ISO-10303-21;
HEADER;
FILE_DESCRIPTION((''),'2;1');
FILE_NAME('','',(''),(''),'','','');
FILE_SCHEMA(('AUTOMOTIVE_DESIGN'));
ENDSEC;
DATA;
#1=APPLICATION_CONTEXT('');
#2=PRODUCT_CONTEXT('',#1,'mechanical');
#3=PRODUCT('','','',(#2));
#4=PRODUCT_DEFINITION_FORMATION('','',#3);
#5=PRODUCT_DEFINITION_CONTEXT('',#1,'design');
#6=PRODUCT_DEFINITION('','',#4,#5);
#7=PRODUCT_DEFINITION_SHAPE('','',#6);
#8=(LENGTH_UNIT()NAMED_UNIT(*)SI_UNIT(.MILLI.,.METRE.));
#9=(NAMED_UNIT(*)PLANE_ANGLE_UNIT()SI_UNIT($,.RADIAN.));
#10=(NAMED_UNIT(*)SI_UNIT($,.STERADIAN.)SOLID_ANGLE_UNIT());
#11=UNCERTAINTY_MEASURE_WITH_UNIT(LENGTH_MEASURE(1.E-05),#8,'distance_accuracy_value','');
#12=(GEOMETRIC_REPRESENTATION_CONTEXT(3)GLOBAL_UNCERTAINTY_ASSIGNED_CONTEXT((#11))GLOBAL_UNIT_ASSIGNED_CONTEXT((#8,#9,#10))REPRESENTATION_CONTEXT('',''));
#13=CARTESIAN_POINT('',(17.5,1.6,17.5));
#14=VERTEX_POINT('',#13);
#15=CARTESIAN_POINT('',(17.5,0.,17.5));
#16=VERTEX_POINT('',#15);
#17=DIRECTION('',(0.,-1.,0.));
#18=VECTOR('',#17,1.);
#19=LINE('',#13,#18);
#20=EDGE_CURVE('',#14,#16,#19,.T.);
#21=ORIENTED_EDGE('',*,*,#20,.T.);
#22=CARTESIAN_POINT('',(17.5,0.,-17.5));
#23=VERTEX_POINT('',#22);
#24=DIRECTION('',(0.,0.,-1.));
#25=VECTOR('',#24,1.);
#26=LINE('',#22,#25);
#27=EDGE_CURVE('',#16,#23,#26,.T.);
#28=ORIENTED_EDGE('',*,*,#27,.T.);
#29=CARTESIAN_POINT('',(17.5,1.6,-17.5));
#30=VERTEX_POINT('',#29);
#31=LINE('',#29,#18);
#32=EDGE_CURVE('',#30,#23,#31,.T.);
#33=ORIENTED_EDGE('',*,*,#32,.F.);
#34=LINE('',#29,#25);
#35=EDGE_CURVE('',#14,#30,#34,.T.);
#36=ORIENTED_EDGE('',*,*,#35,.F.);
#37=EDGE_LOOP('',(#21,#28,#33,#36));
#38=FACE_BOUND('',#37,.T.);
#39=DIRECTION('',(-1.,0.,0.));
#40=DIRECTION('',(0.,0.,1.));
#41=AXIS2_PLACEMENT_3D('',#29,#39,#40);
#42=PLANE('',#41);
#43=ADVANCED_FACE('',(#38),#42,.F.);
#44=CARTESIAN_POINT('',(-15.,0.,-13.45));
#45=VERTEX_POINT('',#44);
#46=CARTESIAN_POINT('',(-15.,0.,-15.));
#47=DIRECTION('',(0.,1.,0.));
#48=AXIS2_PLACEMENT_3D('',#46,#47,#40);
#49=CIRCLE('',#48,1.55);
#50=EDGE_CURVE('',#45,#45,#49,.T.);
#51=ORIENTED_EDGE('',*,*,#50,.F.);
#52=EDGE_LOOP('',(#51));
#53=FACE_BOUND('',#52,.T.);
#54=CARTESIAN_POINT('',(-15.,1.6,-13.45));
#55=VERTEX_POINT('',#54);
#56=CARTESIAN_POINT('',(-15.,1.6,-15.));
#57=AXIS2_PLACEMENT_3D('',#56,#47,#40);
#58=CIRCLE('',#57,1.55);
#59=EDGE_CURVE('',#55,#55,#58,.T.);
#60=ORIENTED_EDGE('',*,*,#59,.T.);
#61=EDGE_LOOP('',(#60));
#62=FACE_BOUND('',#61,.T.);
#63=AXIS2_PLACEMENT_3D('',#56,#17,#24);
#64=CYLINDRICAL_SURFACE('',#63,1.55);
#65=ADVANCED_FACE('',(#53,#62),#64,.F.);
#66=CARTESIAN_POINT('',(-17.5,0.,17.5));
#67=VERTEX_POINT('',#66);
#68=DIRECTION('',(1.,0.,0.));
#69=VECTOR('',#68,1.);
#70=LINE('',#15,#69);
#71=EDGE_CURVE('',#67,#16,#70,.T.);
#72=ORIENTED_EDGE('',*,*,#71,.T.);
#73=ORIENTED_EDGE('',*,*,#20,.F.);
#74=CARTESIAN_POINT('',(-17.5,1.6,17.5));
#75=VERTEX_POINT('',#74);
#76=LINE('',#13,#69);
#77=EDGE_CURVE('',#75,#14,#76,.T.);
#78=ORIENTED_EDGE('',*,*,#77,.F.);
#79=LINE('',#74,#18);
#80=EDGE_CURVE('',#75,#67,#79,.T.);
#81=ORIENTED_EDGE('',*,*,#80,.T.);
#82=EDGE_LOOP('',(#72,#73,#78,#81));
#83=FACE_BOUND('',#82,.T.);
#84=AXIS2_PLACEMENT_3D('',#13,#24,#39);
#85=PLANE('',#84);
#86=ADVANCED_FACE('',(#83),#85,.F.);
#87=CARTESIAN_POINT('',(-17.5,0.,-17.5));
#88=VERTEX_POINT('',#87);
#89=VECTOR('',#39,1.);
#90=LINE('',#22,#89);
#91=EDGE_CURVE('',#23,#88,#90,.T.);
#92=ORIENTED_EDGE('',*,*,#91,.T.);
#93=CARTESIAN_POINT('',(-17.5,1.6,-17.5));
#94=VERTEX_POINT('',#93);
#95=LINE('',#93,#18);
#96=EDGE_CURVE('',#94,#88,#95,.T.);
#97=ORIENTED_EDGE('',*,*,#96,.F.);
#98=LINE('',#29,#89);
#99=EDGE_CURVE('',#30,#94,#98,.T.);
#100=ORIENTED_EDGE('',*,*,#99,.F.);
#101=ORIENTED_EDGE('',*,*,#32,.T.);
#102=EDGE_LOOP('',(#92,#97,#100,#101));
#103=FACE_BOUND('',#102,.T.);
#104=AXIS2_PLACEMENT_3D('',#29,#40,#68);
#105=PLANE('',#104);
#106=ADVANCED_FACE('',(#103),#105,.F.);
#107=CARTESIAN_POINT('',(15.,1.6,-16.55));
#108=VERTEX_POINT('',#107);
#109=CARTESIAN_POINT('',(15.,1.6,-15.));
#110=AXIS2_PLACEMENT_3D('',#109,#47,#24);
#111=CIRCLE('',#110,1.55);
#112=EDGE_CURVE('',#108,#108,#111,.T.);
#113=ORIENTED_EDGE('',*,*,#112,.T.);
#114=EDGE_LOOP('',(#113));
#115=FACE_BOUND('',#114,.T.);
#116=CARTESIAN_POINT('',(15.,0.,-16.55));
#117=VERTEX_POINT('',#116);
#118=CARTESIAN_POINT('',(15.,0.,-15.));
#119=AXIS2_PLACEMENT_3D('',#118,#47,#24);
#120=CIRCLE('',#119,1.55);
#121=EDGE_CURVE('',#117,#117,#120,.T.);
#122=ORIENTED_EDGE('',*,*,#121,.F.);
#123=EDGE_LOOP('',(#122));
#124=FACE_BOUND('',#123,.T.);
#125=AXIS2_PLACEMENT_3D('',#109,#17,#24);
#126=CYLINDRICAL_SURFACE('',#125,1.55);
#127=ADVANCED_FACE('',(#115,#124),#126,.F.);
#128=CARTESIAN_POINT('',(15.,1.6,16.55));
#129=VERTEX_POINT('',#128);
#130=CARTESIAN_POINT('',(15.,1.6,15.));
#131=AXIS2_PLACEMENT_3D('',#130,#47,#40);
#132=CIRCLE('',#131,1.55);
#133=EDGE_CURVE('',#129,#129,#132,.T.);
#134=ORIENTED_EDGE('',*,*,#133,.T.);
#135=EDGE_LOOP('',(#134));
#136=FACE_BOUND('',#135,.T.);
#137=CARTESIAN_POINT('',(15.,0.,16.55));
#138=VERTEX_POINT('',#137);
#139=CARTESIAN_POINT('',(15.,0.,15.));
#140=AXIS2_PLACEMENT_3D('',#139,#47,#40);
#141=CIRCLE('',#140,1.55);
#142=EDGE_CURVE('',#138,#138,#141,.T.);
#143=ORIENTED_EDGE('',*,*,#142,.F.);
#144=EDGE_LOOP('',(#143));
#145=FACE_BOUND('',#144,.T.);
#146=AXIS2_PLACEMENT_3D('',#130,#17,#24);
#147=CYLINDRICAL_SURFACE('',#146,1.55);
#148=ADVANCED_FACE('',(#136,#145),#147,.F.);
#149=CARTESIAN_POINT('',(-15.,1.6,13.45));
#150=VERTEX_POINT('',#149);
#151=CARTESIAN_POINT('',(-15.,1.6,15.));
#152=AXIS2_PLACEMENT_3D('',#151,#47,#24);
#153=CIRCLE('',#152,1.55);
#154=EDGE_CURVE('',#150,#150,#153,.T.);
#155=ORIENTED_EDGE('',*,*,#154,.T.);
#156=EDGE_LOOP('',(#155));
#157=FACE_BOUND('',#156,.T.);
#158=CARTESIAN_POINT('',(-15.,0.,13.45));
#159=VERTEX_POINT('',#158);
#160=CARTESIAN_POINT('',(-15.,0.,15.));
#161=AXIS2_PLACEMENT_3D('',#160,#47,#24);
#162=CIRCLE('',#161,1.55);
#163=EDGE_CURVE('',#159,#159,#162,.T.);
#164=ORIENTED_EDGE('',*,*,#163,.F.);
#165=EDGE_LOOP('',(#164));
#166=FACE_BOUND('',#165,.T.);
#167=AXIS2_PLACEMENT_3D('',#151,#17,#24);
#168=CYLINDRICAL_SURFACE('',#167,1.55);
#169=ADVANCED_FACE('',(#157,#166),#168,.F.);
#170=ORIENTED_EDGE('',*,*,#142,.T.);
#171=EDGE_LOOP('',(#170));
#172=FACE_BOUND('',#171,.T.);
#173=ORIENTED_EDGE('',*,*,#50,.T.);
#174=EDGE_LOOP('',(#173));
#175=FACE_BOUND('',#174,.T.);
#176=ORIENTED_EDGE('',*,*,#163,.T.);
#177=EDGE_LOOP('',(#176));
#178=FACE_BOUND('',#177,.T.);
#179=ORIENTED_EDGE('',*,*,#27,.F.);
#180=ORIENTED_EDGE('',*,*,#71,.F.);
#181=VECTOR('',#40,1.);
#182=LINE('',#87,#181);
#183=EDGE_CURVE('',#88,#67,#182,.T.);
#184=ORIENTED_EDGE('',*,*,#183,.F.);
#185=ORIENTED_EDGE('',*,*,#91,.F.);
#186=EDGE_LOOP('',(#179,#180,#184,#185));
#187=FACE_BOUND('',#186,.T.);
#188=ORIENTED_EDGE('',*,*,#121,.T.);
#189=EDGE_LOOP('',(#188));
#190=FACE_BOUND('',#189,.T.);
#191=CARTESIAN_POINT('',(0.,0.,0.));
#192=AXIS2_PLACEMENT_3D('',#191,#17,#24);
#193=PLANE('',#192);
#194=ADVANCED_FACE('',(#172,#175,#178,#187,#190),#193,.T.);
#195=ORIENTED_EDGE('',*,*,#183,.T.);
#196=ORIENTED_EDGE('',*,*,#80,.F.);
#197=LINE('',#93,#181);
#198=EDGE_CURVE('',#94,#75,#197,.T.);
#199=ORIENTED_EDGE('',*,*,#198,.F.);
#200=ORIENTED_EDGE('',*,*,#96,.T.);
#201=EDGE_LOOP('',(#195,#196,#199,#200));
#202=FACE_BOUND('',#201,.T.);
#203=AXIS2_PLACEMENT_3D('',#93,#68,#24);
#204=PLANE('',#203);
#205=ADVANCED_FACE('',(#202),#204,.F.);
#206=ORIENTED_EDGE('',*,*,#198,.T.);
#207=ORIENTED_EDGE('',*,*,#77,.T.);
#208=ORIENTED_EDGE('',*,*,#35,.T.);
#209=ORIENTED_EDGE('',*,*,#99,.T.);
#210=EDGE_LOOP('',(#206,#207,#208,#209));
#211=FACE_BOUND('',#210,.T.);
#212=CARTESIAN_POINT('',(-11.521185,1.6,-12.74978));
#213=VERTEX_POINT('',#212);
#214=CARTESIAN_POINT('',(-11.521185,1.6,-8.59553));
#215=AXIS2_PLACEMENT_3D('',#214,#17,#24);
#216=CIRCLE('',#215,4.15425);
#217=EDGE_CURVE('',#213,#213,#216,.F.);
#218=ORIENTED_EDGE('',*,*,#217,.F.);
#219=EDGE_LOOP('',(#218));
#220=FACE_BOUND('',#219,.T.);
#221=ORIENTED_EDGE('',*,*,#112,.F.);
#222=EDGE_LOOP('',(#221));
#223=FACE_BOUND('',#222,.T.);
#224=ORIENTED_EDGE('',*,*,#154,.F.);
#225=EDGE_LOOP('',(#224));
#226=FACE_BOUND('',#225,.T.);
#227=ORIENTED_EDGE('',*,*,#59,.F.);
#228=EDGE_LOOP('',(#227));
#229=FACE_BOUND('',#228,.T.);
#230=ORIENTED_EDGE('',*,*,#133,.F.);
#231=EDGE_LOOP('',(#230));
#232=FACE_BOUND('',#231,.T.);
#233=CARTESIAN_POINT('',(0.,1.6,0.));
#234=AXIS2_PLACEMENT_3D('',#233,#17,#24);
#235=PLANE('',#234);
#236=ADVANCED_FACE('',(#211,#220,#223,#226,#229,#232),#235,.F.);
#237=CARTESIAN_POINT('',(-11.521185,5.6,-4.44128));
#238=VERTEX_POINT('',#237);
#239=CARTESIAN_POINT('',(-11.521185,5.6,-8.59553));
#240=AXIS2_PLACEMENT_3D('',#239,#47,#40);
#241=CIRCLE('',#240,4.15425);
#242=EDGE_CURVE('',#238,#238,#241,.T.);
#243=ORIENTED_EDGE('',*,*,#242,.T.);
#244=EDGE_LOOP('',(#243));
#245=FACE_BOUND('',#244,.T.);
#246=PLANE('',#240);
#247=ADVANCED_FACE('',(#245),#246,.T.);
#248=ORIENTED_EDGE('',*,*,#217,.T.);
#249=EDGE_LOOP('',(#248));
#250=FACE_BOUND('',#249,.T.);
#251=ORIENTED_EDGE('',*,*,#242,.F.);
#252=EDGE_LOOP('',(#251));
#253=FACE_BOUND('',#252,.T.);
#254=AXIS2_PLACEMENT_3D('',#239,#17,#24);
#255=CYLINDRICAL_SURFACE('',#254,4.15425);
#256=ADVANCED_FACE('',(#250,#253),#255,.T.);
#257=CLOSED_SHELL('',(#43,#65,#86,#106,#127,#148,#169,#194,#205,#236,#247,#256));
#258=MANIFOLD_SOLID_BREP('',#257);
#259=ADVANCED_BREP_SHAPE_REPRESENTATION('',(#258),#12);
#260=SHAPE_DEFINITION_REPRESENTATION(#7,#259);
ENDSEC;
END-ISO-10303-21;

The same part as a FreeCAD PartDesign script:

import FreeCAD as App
import Part
import Sketcher
Q = App.Units.Quantity

doc = App.newDocument("Part")
body = doc.addObject("PartDesign::Body", "Body")

# Sketch on XZ plane
sketch1 = body.newObject("Sketcher::SketchObject", "Sketch")
sketch1.AttachmentSupport = (doc.getObject("XZ_Plane"), [""])
sketch1.MapMode = "FlatFace"
sketch1.addGeometry(Part.LineSegment(App.Vector(-17.5, -17.5, 0), App.Vector(-17.5, 17.5, 0)), False)
sketch1.addGeometry(Part.LineSegment(App.Vector(-17.5, 17.5, 0), App.Vector(17.5, 17.5, 0)), False)
sketch1.addGeometry(Part.LineSegment(App.Vector(17.5, 17.5, 0), App.Vector(17.5, -17.5, 0)), False)
sketch1.addGeometry(Part.LineSegment(App.Vector(17.5, -17.5, 0), App.Vector(-17.5, -17.5, 0)), False)
sketch1.addGeometry(Part.Circle(App.Vector(-15, 15, 0), App.Vector(0, 0, 1), 1.55), False)
sketch1.addGeometry(Part.Circle(App.Vector(15, 15, 0), App.Vector(0, 0, 1), 1.55), False)
sketch1.addGeometry(Part.Circle(App.Vector(-15, -15, 0), App.Vector(0, 0, 1), 1.55), False)
sketch1.addGeometry(Part.Circle(App.Vector(15, -15, 0), App.Vector(0, 0, 1), 1.55), False)
sketch1.addConstraint(Sketcher.Constraint("Coincident", 0, 2, 1, 1))
sketch1.addConstraint(Sketcher.Constraint("Coincident", 1, 2, 2, 1))
sketch1.addConstraint(Sketcher.Constraint("Coincident", 2, 2, 3, 1))
sketch1.addConstraint(Sketcher.Constraint("Coincident", 3, 2, 0, 1))
sketch1.addConstraint(Sketcher.Constraint("Vertical", 0))
sketch1.addConstraint(Sketcher.Constraint("Horizontal", 1))
sketch1.addConstraint(Sketcher.Constraint("Vertical", 2))
sketch1.addConstraint(Sketcher.Constraint("Horizontal", 3))
sketch1.addConstraint(Sketcher.Constraint("Equal", 4, 5))
sketch1.addConstraint(Sketcher.Constraint("Equal", 5, 6))
sketch1.addConstraint(Sketcher.Constraint("Equal", 6, 7))
sketch1.addConstraint(Sketcher.Constraint("Symmetric", 5, 3, 6, 3, -1, 1))
sketch1.addConstraint(Sketcher.Constraint("Symmetric", 4, 3, 7, 3, -1, 1))
sketch1.addConstraint(Sketcher.Constraint("Symmetric", 0, 2, 2, 2, -1, 1))
sketch1.addConstraint(Sketcher.Constraint("Symmetric", 4, 3, 5, 3, -2))
sketch1.addConstraint(Sketcher.Constraint("Equal", 3, 0))
sketch1.addConstraint(Sketcher.Constraint("Diameter", 4, Q("3.1 mm")))
sketch1.addConstraint(Sketcher.Constraint("DistanceX", 1, 1, 1, 2, Q("35 mm")))
sketch1.addConstraint(Sketcher.Constraint("DistanceX", 4, 3, -1, 1, Q("15 mm")))
sketch1.addConstraint(Sketcher.Constraint("DistanceY", -1, 1, 4, 3, Q("15 mm")))
pad1 = body.newObject("PartDesign::Pad", "Pad")
pad1.Profile = sketch1
pad1.Length = 1.6
pad1.Reversed = True

# Sketch on XZ plane
sketch2 = body.newObject("Sketcher::SketchObject", "Sketch001")
sketch2.AttachmentSupport = (doc.getObject("XZ_Plane"), [""])
sketch2.MapMode = "FlatFace"
sketch2.AttachmentOffset = App.Placement(App.Vector(0, 0, -1.6), App.Rotation())
sketch2.addGeometry(Part.Circle(App.Vector(-11.521185, -8.59553, 0), App.Vector(0, 0, 1), 4.15425), False)
sketch2.addConstraint(Sketcher.Constraint("Diameter", 0, Q("8.3085 mm")))
sketch2.addConstraint(Sketcher.Constraint("DistanceY", 0, 3, -1, 1, Q("8.59553 mm")))
sketch2.addConstraint(Sketcher.Constraint("DistanceX", 0, 3, -1, 1, Q("11.521185 mm")))
pad2 = body.newObject("PartDesign::Pad", "Pad001")
pad2.Profile = sketch2
pad2.Length = 4
pad2.Reversed = True

doc.recompute()
